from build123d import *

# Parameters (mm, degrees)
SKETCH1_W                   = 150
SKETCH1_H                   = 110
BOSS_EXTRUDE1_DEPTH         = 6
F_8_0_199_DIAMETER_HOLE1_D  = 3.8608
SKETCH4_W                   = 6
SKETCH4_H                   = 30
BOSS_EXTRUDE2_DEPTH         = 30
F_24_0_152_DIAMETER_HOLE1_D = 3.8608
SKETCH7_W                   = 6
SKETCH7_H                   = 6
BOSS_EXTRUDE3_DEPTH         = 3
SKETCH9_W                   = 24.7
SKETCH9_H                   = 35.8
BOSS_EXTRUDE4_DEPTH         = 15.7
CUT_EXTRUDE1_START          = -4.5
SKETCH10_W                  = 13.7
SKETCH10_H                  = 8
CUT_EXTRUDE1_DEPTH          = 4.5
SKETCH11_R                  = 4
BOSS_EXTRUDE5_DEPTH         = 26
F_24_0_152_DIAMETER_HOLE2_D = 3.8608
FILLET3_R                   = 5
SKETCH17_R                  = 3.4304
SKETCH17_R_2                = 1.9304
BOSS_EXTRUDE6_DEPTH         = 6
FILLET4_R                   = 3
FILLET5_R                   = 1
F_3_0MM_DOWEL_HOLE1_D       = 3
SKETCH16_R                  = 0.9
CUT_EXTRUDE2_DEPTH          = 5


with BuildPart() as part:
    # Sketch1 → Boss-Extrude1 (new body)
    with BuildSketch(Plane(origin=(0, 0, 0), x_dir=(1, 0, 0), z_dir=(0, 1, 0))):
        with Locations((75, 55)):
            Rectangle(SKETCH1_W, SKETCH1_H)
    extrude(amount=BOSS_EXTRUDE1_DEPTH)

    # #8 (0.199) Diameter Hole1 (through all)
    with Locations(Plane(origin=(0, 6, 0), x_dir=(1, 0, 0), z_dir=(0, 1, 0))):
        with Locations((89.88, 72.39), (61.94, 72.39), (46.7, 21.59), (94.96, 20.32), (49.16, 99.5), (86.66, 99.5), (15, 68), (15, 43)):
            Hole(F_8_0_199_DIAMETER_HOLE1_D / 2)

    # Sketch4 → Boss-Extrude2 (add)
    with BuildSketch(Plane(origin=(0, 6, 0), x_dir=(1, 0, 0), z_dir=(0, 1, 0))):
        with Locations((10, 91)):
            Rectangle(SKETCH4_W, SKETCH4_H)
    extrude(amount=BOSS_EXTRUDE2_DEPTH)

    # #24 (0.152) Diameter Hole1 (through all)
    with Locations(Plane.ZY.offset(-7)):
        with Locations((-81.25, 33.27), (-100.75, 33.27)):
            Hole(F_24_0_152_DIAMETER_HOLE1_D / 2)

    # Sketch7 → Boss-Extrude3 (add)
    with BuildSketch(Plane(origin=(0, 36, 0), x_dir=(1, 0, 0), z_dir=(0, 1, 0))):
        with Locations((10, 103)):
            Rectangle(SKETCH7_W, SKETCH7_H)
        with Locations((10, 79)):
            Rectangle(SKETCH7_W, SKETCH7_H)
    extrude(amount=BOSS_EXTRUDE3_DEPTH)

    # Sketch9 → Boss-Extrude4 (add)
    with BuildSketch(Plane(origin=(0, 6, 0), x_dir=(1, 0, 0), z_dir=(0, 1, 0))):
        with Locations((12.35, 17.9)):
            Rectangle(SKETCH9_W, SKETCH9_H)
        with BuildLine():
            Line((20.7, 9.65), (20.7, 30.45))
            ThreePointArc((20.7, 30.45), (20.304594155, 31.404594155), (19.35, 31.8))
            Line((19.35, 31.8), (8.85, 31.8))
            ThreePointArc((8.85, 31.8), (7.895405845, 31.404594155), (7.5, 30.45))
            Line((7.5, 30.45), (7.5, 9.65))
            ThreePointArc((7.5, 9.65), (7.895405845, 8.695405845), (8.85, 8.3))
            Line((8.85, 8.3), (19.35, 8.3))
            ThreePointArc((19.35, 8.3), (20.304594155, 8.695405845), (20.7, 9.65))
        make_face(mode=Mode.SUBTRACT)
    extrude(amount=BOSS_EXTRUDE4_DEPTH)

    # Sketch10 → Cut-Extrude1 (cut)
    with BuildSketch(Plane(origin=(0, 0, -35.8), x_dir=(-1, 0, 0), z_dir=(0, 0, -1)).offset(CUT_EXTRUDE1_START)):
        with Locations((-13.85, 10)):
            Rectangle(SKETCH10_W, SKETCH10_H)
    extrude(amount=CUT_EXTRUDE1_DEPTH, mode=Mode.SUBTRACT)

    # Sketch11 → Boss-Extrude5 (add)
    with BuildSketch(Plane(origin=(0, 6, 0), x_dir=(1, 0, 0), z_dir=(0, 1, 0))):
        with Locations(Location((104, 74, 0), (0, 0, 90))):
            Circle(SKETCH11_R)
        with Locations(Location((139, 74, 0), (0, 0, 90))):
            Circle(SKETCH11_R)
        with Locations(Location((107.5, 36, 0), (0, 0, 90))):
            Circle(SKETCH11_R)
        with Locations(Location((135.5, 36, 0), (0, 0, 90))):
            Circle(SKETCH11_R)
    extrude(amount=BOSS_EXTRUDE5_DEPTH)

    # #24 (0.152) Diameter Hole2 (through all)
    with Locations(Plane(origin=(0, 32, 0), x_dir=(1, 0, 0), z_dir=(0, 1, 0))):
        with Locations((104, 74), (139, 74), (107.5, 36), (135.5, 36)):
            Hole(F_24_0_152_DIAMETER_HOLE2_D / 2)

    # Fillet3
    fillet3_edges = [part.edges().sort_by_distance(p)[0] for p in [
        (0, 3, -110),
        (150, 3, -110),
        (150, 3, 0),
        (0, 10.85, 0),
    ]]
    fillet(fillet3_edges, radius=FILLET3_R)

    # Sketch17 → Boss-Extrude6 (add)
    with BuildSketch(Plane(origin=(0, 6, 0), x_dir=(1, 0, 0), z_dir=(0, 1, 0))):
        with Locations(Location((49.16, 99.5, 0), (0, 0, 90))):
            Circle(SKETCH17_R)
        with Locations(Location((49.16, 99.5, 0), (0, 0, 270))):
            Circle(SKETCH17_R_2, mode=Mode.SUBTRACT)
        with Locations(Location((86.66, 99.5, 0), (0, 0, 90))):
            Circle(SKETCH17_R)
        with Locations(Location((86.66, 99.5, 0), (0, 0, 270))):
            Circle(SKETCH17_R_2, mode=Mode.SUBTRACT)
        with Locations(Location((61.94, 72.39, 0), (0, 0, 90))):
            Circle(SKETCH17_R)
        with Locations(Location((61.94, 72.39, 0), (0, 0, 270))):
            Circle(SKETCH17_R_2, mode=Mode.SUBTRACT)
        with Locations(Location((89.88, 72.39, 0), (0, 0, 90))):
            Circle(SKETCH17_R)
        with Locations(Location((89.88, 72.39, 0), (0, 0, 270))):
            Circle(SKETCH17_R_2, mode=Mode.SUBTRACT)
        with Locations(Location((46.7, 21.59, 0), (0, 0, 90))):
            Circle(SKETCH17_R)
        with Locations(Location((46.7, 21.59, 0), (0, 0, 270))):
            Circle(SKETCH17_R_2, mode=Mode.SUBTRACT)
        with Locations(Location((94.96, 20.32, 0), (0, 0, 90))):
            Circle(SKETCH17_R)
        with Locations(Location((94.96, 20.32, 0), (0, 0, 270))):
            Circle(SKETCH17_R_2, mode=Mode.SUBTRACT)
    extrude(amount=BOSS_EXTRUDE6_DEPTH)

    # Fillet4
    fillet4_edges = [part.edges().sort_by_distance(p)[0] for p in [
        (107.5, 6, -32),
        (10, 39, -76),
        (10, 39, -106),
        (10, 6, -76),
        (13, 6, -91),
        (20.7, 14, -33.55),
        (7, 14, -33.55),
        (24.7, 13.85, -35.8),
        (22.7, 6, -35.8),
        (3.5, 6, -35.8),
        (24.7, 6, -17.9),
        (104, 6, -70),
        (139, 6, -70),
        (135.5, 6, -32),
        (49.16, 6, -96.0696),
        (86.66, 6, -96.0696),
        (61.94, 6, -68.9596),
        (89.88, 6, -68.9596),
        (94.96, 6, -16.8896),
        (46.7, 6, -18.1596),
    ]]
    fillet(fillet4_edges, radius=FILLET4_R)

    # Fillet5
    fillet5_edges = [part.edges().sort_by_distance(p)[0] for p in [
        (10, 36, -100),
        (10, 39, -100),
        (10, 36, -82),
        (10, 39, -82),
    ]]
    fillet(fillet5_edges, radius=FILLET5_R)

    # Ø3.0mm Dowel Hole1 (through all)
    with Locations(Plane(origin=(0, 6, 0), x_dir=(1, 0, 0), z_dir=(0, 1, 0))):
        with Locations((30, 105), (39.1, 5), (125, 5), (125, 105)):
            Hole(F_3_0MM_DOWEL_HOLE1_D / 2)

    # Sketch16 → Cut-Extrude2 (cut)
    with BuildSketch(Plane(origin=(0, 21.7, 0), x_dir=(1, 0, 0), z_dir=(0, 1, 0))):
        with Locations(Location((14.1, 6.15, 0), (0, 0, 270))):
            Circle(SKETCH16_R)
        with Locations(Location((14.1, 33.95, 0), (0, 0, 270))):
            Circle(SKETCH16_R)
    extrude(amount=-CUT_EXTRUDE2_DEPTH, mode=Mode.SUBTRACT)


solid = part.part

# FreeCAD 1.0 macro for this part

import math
import FreeCAD as App
import Part
import Sketcher

V = App.Vector
Q = App.Units.Quantity


def edges_at(feature, points):
    """Names of the edges that pass closest to the given points."""
    edges = feature.Shape.Edges
    near = lambda p: min(range(len(edges)), key=lambda i: edges[i].distToShape(Part.Vertex(*p))[0])
    return sorted({f"Edge{near(p) + 1}" for p in points})

doc = App.newDocument("Part")
body = doc.addObject("PartDesign::Body", "Body")

# Sketch on XZ plane
sketch1 = body.newObject("Sketcher::SketchObject", "Sketch")
sketch1.AttachmentSupport = (doc.getObject("XZ_Plane"), [""])
sketch1.MapMode = "FlatFace"
sketch1.addGeometry(Part.LineSegment(V(0, -110, 0), V(0, 0, 0)), False)
sketch1.addGeometry(Part.LineSegment(V(0, 0, 0), V(150, 0, 0)), False)
sketch1.addGeometry(Part.LineSegment(V(150, 0, 0), V(150, -110, 0)), False)
sketch1.addGeometry(Part.LineSegment(V(150, -110, 0), V(0, -110, 0)), False)
sketch1.addConstraint(Sketcher.Constraint("Coincident", 0, 2, 1, 1))
sketch1.addConstraint(Sketcher.Constraint("Coincident", 1, 2, 2, 1))
sketch1.addConstraint(Sketcher.Constraint("Coincident", 2, 2, 3, 1))
sketch1.addConstraint(Sketcher.Constraint("Coincident", 3, 2, 0, 1))
sketch1.addConstraint(Sketcher.Constraint("Vertical", 0))
sketch1.addConstraint(Sketcher.Constraint("Horizontal", 1))
sketch1.addConstraint(Sketcher.Constraint("Vertical", 2))
sketch1.addConstraint(Sketcher.Constraint("Horizontal", 3))
sketch1.addConstraint(Sketcher.Constraint("Coincident", 0, 2, -1, 1))
sketch1.addConstraint(Sketcher.Constraint("DistanceX", 1, 1, 1, 2, Q("150 mm")))
sketch1.addConstraint(Sketcher.Constraint("DistanceY", 0, 1, 0, 2, Q("110 mm")))
pad1 = body.newObject("PartDesign::Pad", "Pad")
pad1.Profile = sketch1
pad1.Length = 6
pad1.Reversed = True

# Sketch on XZ plane
sketch2 = body.newObject("Sketcher::SketchObject", "Sketch001")
sketch2.AttachmentSupport = (doc.getObject("XZ_Plane"), [""])
sketch2.MapMode = "FlatFace"
sketch2.AttachmentOffset = App.Placement(V(0, 0, -6), App.Rotation())
sketch2.addGeometry(Part.Circle(V(89.9, -72.4, 0), V(0, 0, 1), 1.9), False)
sketch2.addGeometry(Part.Circle(V(61.9, -72.4, 0), V(0, 0, 1), 1.9), False)
sketch2.addGeometry(Part.Circle(V(46.7, -21.6, 0), V(0, 0, 1), 1.9), False)
sketch2.addGeometry(Part.Circle(V(95, -20.3, 0), V(0, 0, 1), 1.9), False)
sketch2.addGeometry(Part.Circle(V(49.2, -99.5, 0), V(0, 0, 1), 1.9), False)
sketch2.addGeometry(Part.Circle(V(86.7, -99.5, 0), V(0, 0, 1), 1.9), False)
sketch2.addGeometry(Part.Circle(V(15, -68, 0), V(0, 0, 1), 1.9), False)
sketch2.addGeometry(Part.Circle(V(15, -43, 0), V(0, 0, 1), 1.9), False)
sketch2.addConstraint(Sketcher.Constraint("Equal", 0, 1))
sketch2.addConstraint(Sketcher.Constraint("Equal", 1, 2))
sketch2.addConstraint(Sketcher.Constraint("Equal", 2, 3))
sketch2.addConstraint(Sketcher.Constraint("Equal", 3, 4))
sketch2.addConstraint(Sketcher.Constraint("Equal", 4, 5))
sketch2.addConstraint(Sketcher.Constraint("Equal", 5, 6))
sketch2.addConstraint(Sketcher.Constraint("Equal", 6, 7))
sketch2.addConstraint(Sketcher.Constraint("Horizontal", 0, 3, 1, 3))
sketch2.addConstraint(Sketcher.Constraint("Horizontal", 4, 3, 5, 3))
sketch2.addConstraint(Sketcher.Constraint("Vertical", 6, 3, 7, 3))
sketch2.addConstraint(Sketcher.Constraint("DistanceX", -1, 1, 6, 3, Q("15 mm")))
sketch2.addConstraint(Sketcher.Constraint("DistanceY", 6, 3, -1, 1, Q("68 mm")))
sketch2.addConstraint(Sketcher.Constraint("DistanceY", 7, 3, -1, 1, Q("43 mm")))
sketch2.addConstraint(Sketcher.Constraint("Diameter", 0, Q("3.8608 mm")))
sketch2.addConstraint(Sketcher.Constraint("DistanceX", -1, 1, 2, 3, Q("46.7 mm")))
sketch2.addConstraint(Sketcher.Constraint("DistanceY", 4, 3, -1, 1, Q("99.5 mm")))
sketch2.addConstraint(Sketcher.Constraint("DistanceY", 1, 3, 2, 3, Q("50.8 mm")))
sketch2.addConstraint(Sketcher.Constraint("DistanceX", 4, 3, 3, 3, Q("45.8 mm")))
sketch2.addConstraint(Sketcher.Constraint("DistanceX", 4, 3, 5, 3, Q("37.5 mm")))
sketch2.addConstraint(Sketcher.Constraint("DistanceX", -1, 1, 0, 3, Q("89.88 mm")))
sketch2.addConstraint(Sketcher.Constraint("DistanceY", 0, 3, -1, 1, Q("72.39 mm")))
sketch2.addConstraint(Sketcher.Constraint("DistanceX", -1, 1, 1, 3, Q("61.94 mm")))
sketch2.addConstraint(Sketcher.Constraint("DistanceX", -1, 1, 3, 3, Q("94.96 mm")))
sketch2.addConstraint(Sketcher.Constraint("DistanceY", 3, 3, -1, 1, Q("20.32 mm")))
doc.recompute()
hole = body.newObject("PartDesign::Hole", "Hole")
hole.Profile = sketch2
hole.ThreadType = "None"
hole.Diameter = 3.8608
hole.DepthType = "ThroughAll"
hole.Reversed = True

# Sketch on XZ plane
sketch3 = body.newObject("Sketcher::SketchObject", "Sketch002")
sketch3.AttachmentSupport = (doc.getObject("XZ_Plane"), [""])
sketch3.MapMode = "FlatFace"
sketch3.AttachmentOffset = App.Placement(V(0, 0, -6), App.Rotation())
sketch3.addGeometry(Part.LineSegment(V(7, -106, 0), V(7, -76, 0)), False)
sketch3.addGeometry(Part.LineSegment(V(7, -76, 0), V(13, -76, 0)), False)
sketch3.addGeometry(Part.LineSegment(V(13, -76, 0), V(13, -106, 0)), False)
sketch3.addGeometry(Part.LineSegment(V(13, -106, 0), V(7, -106, 0)), False)
sketch3.addConstraint(Sketcher.Constraint("Coincident", 0, 2, 1, 1))
sketch3.addConstraint(Sketcher.Constraint("Coincident", 1, 2, 2, 1))
sketch3.addConstraint(Sketcher.Constraint("Coincident", 2, 2, 3, 1))
sketch3.addConstraint(Sketcher.Constraint("Coincident", 3, 2, 0, 1))
sketch3.addConstraint(Sketcher.Constraint("Vertical", 0))
sketch3.addConstraint(Sketcher.Constraint("Horizontal", 1))
sketch3.addConstraint(Sketcher.Constraint("Vertical", 2))
sketch3.addConstraint(Sketcher.Constraint("Horizontal", 3))
sketch3.addConstraint(Sketcher.Constraint("DistanceX", 1, 1, 1, 2, Q("6 mm")))
sketch3.addConstraint(Sketcher.Constraint("DistanceY", 0, 1, 0, 2, Q("30 mm")))
sketch3.addConstraint(Sketcher.Constraint("DistanceX", -1, 1, 0, 2, Q("7 mm")))
sketch3.addConstraint(Sketcher.Constraint("DistanceY", 0, 2, -1, 1, Q("76 mm")))
pad2 = body.newObject("PartDesign::Pad", "Pad001")
pad2.Profile = sketch3
pad2.Length = 30
pad2.Reversed = True

# Sketch on YZ plane
sketch4 = body.newObject("Sketcher::SketchObject", "Sketch003")
sketch4.AttachmentSupport = (doc.getObject("YZ_Plane"), [""])
sketch4.MapMode = "FlatFace"
sketch4.AttachmentOffset = App.Placement(V(0, 0, 7), App.Rotation())
sketch4.addGeometry(Part.Circle(V(33.3, -81.2, 0), V(0, 0, 1), 1.9), False)
sketch4.addGeometry(Part.Circle(V(33.3, -100.8, 0), V(0, 0, 1), 1.9), False)
sketch4.addConstraint(Sketcher.Constraint("Equal", 0, 1))
sketch4.addConstraint(Sketcher.Constraint("Vertical", 0, 3, 1, 3))
sketch4.addConstraint(Sketcher.Constraint("Diameter", 0, Q("3.8608 mm")))
sketch4.addConstraint(Sketcher.Constraint("DistanceY", 1, 3, 0, 3, Q("19.5 mm")))
sketch4.addConstraint(Sketcher.Constraint("DistanceX", -1, 1, 0, 3, Q("33.27 mm")))
sketch4.addConstraint(Sketcher.Constraint("DistanceY", 0, 3, -1, 1, Q("81.25 mm")))
doc.recompute()
hole2 = body.newObject("PartDesign::Hole", "Hole001")
hole2.Profile = sketch4
hole2.ThreadType = "None"
hole2.Diameter = 3.8608
hole2.DepthType = "ThroughAll"
hole2.Reversed = True

# Sketch on XZ plane
sketch5 = body.newObject("Sketcher::SketchObject", "Sketch004")
sketch5.AttachmentSupport = (doc.getObject("XZ_Plane"), [""])
sketch5.MapMode = "FlatFace"
sketch5.AttachmentOffset = App.Placement(V(0, 0, -36), App.Rotation())
sketch5.addGeometry(Part.LineSegment(V(7, -106, 0), V(7, -100, 0)), False)
sketch5.addGeometry(Part.LineSegment(V(7, -100, 0), V(13, -100, 0)), False)
sketch5.addGeometry(Part.LineSegment(V(13, -100, 0), V(13, -106, 0)), False)
sketch5.addGeometry(Part.LineSegment(V(13, -106, 0), V(7, -106, 0)), False)
sketch5.addGeometry(Part.LineSegment(V(7, -82, 0), V(7, -76, 0)), False)
sketch5.addGeometry(Part.LineSegment(V(7, -76, 0), V(13, -76, 0)), False)
sketch5.addGeometry(Part.LineSegment(V(13, -76, 0), V(13, -82, 0)), False)
sketch5.addGeometry(Part.LineSegment(V(13, -82, 0), V(7, -82, 0)), False)
sketch5.addConstraint(Sketcher.Constraint("Coincident", 0, 2, 1, 1))
sketch5.addConstraint(Sketcher.Constraint("Coincident", 1, 2, 2, 1))
sketch5.addConstraint(Sketcher.Constraint("Coincident", 2, 2, 3, 1))
sketch5.addConstraint(Sketcher.Constraint("Coincident", 3, 2, 0, 1))
sketch5.addConstraint(Sketcher.Constraint("Coincident", 4, 2, 5, 1))
sketch5.addConstraint(Sketcher.Constraint("Coincident", 5, 2, 6, 1))
sketch5.addConstraint(Sketcher.Constraint("Coincident", 6, 2, 7, 1))
sketch5.addConstraint(Sketcher.Constraint("Coincident", 7, 2, 4, 1))
sketch5.addConstraint(Sketcher.Constraint("Vertical", 0))
sketch5.addConstraint(Sketcher.Constraint("Horizontal", 1))
sketch5.addConstraint(Sketcher.Constraint("Vertical", 2))
sketch5.addConstraint(Sketcher.Constraint("Horizontal", 3))
sketch5.addConstraint(Sketcher.Constraint("Vertical", 4))
sketch5.addConstraint(Sketcher.Constraint("Horizontal", 5))
sketch5.addConstraint(Sketcher.Constraint("Vertical", 6))
sketch5.addConstraint(Sketcher.Constraint("Horizontal", 7))
sketch5.addConstraint(Sketcher.Constraint("Vertical", 3, 2, 4, 2))
sketch5.addConstraint(Sketcher.Constraint("Vertical", 2, 2, 5, 2))
sketch5.addConstraint(Sketcher.Constraint("Equal", 7, 0))
sketch5.addConstraint(Sketcher.Constraint("Equal", 2, 4))
sketch5.addConstraint(Sketcher.Constraint("DistanceX", 1, 1, 1, 2, Q("6 mm")))
sketch5.addConstraint(Sketcher.Constraint("DistanceX", -1, 1, 0, 2, Q("7 mm")))
sketch5.addConstraint(Sketcher.Constraint("DistanceY", 0, 2, -1, 1, Q("100 mm")))
sketch5.addConstraint(Sketcher.Constraint("DistanceY", 4, 2, -1, 1, Q("76 mm")))
pad3 = body.newObject("PartDesign::Pad", "Pad002")
pad3.Profile = sketch5
pad3.Length = 3
pad3.Reversed = True

# Sketch on XZ plane
sketch6 = body.newObject("Sketcher::SketchObject", "Sketch005")
sketch6.AttachmentSupport = (doc.getObject("XZ_Plane"), [""])
sketch6.MapMode = "FlatFace"
sketch6.AttachmentOffset = App.Placement(V(0, 0, -6), App.Rotation())
sketch6.addGeometry(Part.LineSegment(V(0, -35.8, 0), V(0, 0, 0)), False)
sketch6.addGeometry(Part.LineSegment(V(0, 0, 0), V(24.7, 0, 0)), False)
sketch6.addGeometry(Part.LineSegment(V(24.7, 0, 0), V(24.7, -35.8, 0)), False)
sketch6.addGeometry(Part.LineSegment(V(24.7, -35.8, 0), V(0, -35.8, 0)), False)
sketch6.addGeometry(Part.LineSegment(V(20.7, -30.4, 0), V(20.7, -9.7, 0)), False)
sketch6.addGeometry(Part.ArcOfCircle(Part.Circle(V(19.4, -9.6, 0), V(0, 0, 1), 1.3), math.radians(0), math.radians(90)), False)
sketch6.addGeometry(Part.LineSegment(V(19.4, -8.3, 0), V(8.8, -8.3, 0)), False)
sketch6.addGeometry(Part.ArcOfCircle(Part.Circle(V(8.8, -9.6, 0), V(0, 0, 1), 1.3), math.radians(90), math.radians(180)), False)
sketch6.addGeometry(Part.LineSegment(V(7.5, -9.7, 0), V(7.5, -30.4, 0)), False)
sketch6.addGeometry(Part.ArcOfCircle(Part.Circle(V(8.8, -30.5, 0), V(0, 0, 1), 1.3), math.radians(180), math.radians(270)), False)
sketch6.addGeometry(Part.LineSegment(V(8.8, -31.8, 0), V(19.4, -31.8, 0)), False)
sketch6.addGeometry(Part.ArcOfCircle(Part.Circle(V(19.4, -30.5, 0), V(0, 0, 1), 1.3), math.radians(-90), math.radians(0)), False)
sketch6.addConstraint(Sketcher.Constraint("Coincident", 0, 2, 1, 1))
sketch6.addConstraint(Sketcher.Constraint("Coincident", 1, 2, 2, 1))
sketch6.addConstraint(Sketcher.Constraint("Coincident", 2, 2, 3, 1))
sketch6.addConstraint(Sketcher.Constraint("Coincident", 3, 2, 0, 1))
sketch6.addConstraint(Sketcher.Constraint("Tangent", 4, 2, 5, 1))
sketch6.addConstraint(Sketcher.Constraint("Tangent", 5, 2, 6, 1))
sketch6.addConstraint(Sketcher.Constraint("Tangent", 6, 2, 7, 1))
sketch6.addConstraint(Sketcher.Constraint("Tangent", 7, 2, 8, 1))
sketch6.addConstraint(Sketcher.Constraint("Tangent", 8, 2, 9, 1))
sketch6.addConstraint(Sketcher.Constraint("Tangent", 9, 2, 10, 1))
sketch6.addConstraint(Sketcher.Constraint("Tangent", 10, 2, 11, 1))
sketch6.addConstraint(Sketcher.Constraint("Tangent", 11, 2, 4, 1))
sketch6.addConstraint(Sketcher.Constraint("Vertical", 0))
sketch6.addConstraint(Sketcher.Constraint("Horizontal", 1))
sketch6.addConstraint(Sketcher.Constraint("Vertical", 2))
sketch6.addConstraint(Sketcher.Constraint("Horizontal", 3))
sketch6.addConstraint(Sketcher.Constraint("Vertical", 4))
sketch6.addConstraint(Sketcher.Constraint("Horizontal", 6))
sketch6.addConstraint(Sketcher.Constraint("Vertical", 8))
sketch6.addConstraint(Sketcher.Constraint("Horizontal", 10))
sketch6.addConstraint(Sketcher.Constraint("Coincident", 0, 2, -1, 1))
sketch6.addConstraint(Sketcher.Constraint("Equal", 5, 7))
sketch6.addConstraint(Sketcher.Constraint("Equal", 7, 9))
sketch6.addConstraint(Sketcher.Constraint("Equal", 9, 11))
sketch6.addConstraint(Sketcher.Constraint("Radius", 5, Q("1.35 mm")))
sketch6.addConstraint(Sketcher.Constraint("DistanceX", 1, 1, 1, 2, Q("24.7 mm")))
sketch6.addConstraint(Sketcher.Constraint("DistanceX", 6, 2, 6, 1, Q("10.5 mm")))
sketch6.addConstraint(Sketcher.Constraint("DistanceY", 0, 1, 0, 2, Q("35.8 mm")))
sketch6.addConstraint(Sketcher.Constraint("DistanceY", 4, 1, 4, 2, Q("20.8 mm")))
sketch6.addConstraint(Sketcher.Constraint("DistanceX", 4, 2, 1, 2, Q("4 mm")))
sketch6.addConstraint(Sketcher.Constraint("DistanceY", 3, 2, 9, 2, Q("4 mm")))
pad4 = body.newObject("PartDesign::Pad", "Pad003")
pad4.Profile = sketch6
pad4.Length = 15.7
pad4.Reversed = True

# Sketch on XY plane
sketch7 = body.newObject("Sketcher::SketchObject", "Sketch006")
sketch7.AttachmentSupport = (doc.getObject("XY_Plane"), [""])
sketch7.MapMode = "FlatFace"
sketch7.AttachmentOffset = App.Placement(V(0, 0, -31.3), App.Rotation())
sketch7.addGeometry(Part.LineSegment(V(21, 14, 0), V(21, 6, 0)), False)
sketch7.addGeometry(Part.LineSegment(V(21, 6, 0), V(7, 6, 0)), False)
sketch7.addGeometry(Part.LineSegment(V(7, 6, 0), V(7, 14, 0)), False)
sketch7.addGeometry(Part.LineSegment(V(7, 14, 0), V(21, 14, 0)), False)
sketch7.addConstraint(Sketcher.Constraint("Coincident", 0, 2, 1, 1))
sketch7.addConstraint(Sketcher.Constraint("Coincident", 1, 2, 2, 1))
sketch7.addConstraint(Sketcher.Constraint("Coincident", 2, 2, 3, 1))
sketch7.addConstraint(Sketcher.Constraint("Coincident", 3, 2, 0, 1))
sketch7.addConstraint(Sketcher.Constraint("Vertical", 0))
sketch7.addConstraint(Sketcher.Constraint("Horizontal", 1))
sketch7.addConstraint(Sketcher.Constraint("Vertical", 2))
sketch7.addConstraint(Sketcher.Constraint("Horizontal", 3))
sketch7.addConstraint(Sketcher.Constraint("DistanceY", 0, 2, 0, 1, Q("8 mm")))
sketch7.addConstraint(Sketcher.Constraint("DistanceX", 1, 2, 1, 1, Q("13.7 mm")))
sketch7.addConstraint(Sketcher.Constraint("DistanceY", -1, 1, 0, 2, Q("6 mm")))
sketch7.addConstraint(Sketcher.Constraint("DistanceX", -1, 1, 1, 2, Q("7 mm")))
pocket1 = body.newObject("PartDesign::Pocket", "Pocket")
pocket1.Profile = sketch7
pocket1.Length = 4.5

# Sketch on XZ plane
sketch8 = body.newObject("Sketcher::SketchObject", "Sketch007")
sketch8.AttachmentSupport = (doc.getObject("XZ_Plane"), [""])
sketch8.MapMode = "FlatFace"
sketch8.AttachmentOffset = App.Placement(V(0, 0, -6), App.Rotation())
sketch8.addGeometry(Part.Circle(V(104, -74, 0), V(0, 0, 1), 4), False)
sketch8.addGeometry(Part.Circle(V(139, -74, 0), V(0, 0, 1), 4), False)
sketch8.addGeometry(Part.Circle(V(107.5, -36, 0), V(0, 0, 1), 4), False)
sketch8.addGeometry(Part.Circle(V(135.5, -36, 0), V(0, 0, 1), 4), False)
sketch8.addConstraint(Sketcher.Constraint("Equal", 0, 1))
sketch8.addConstraint(Sketcher.Constraint("Equal", 1, 2))
sketch8.addConstraint(Sketcher.Constraint("Equal", 2, 3))
sketch8.addConstraint(Sketcher.Constraint("Horizontal", 0, 3, 1, 3))
sketch8.addConstraint(Sketcher.Constraint("Horizontal", 2, 3, 3, 3))
sketch8.addConstraint(Sketcher.Constraint("Diameter", 0, Q("8 mm")))
sketch8.addConstraint(Sketcher.Constraint("DistanceX", -1, 1, 0, 3, Q("104 mm")))
sketch8.addConstraint(Sketcher.Constraint("DistanceY", 0, 3, -1, 1, Q("74 mm")))
sketch8.addConstraint(Sketcher.Constraint("DistanceX", -1, 1, 1, 3, Q("139 mm")))
sketch8.addConstraint(Sketcher.Constraint("DistanceY", 2, 3, -1, 1, Q("36 mm")))
sketch8.addConstraint(Sketcher.Constraint("DistanceX", 2, 3, 3, 3, Q("28 mm")))
sketch8.addConstraint(Sketcher.Constraint("DistanceX", -1, 1, 2, 3, Q("107.5 mm")))
pad5 = body.newObject("PartDesign::Pad", "Pad004")
pad5.Profile = sketch8
pad5.Length = 26
pad5.Reversed = True

# Sketch on XZ plane
sketch9 = body.newObject("Sketcher::SketchObject", "Sketch008")
sketch9.AttachmentSupport = (doc.getObject("XZ_Plane"), [""])
sketch9.MapMode = "FlatFace"
sketch9.AttachmentOffset = App.Placement(V(0, 0, -32), App.Rotation())
sketch9.addGeometry(Part.Circle(V(104, -74, 0), V(0, 0, 1), 1.9), False)
sketch9.addGeometry(Part.Circle(V(139, -74, 0), V(0, 0, 1), 1.9), False)
sketch9.addGeometry(Part.Circle(V(107.5, -36, 0), V(0, 0, 1), 1.9), False)
sketch9.addGeometry(Part.Circle(V(135.5, -36, 0), V(0, 0, 1), 1.9), False)
sketch9.addConstraint(Sketcher.Constraint("Equal", 0, 1))
sketch9.addConstraint(Sketcher.Constraint("Equal", 1, 2))
sketch9.addConstraint(Sketcher.Constraint("Equal", 2, 3))
sketch9.addConstraint(Sketcher.Constraint("Horizontal", 0, 3, 1, 3))
sketch9.addConstraint(Sketcher.Constraint("Horizontal", 2, 3, 3, 3))
sketch9.addConstraint(Sketcher.Constraint("DistanceX", -1, 1, 0, 3, Q("104 mm")))
sketch9.addConstraint(Sketcher.Constraint("DistanceY", 0, 3, -1, 1, Q("74 mm")))
sketch9.addConstraint(Sketcher.Constraint("DistanceX", -1, 1, 1, 3, Q("139 mm")))
sketch9.addConstraint(Sketcher.Constraint("DistanceY", 2, 3, -1, 1, Q("36 mm")))
sketch9.addConstraint(Sketcher.Constraint("DistanceX", 2, 3, 3, 3, Q("28 mm")))
sketch9.addConstraint(Sketcher.Constraint("Diameter", 0, Q("3.8608 mm")))
sketch9.addConstraint(Sketcher.Constraint("DistanceX", -1, 1, 2, 3, Q("107.5 mm")))
doc.recompute()
hole3 = body.newObject("PartDesign::Hole", "Hole002")
hole3.Profile = sketch9
hole3.ThreadType = "None"
hole3.Diameter = 3.8608
hole3.DepthType = "ThroughAll"
hole3.Reversed = True
doc.recompute()

fillet = body.newObject("PartDesign::Fillet", "Fillet")
fillet.Base = (hole3, edges_at(hole3, [
    (0, 3, -110),
    (150, 3, -110),
    (150, 3, 0),
    (0, 10.85, 0),
]))
fillet.Radius = 5

# Sketch on XZ plane
sketch10 = body.newObject("Sketcher::SketchObject", "Sketch009")
sketch10.AttachmentSupport = (doc.getObject("XZ_Plane"), [""])
sketch10.MapMode = "FlatFace"
sketch10.AttachmentOffset = App.Placement(V(0, 0, -6), App.Rotation())
sketch10.addGeometry(Part.Circle(V(49.2, -99.5, 0), V(0, 0, 1), 3.4), False)
sketch10.addGeometry(Part.Circle(V(49.2, -99.5, 0), V(0, 0, 1), 1.9), False)
sketch10.addGeometry(Part.Circle(V(86.7, -99.5, 0), V(0, 0, 1), 3.4), False)
sketch10.addGeometry(Part.Circle(V(86.7, -99.5, 0), V(0, 0, 1), 1.9), False)
sketch10.addGeometry(Part.Circle(V(61.9, -72.4, 0), V(0, 0, 1), 3.4), False)
sketch10.addGeometry(Part.Circle(V(61.9, -72.4, 0), V(0, 0, 1), 1.9), False)
sketch10.addGeometry(Part.Circle(V(89.9, -72.4, 0), V(0, 0, 1), 3.4), False)
sketch10.addGeometry(Part.Circle(V(89.9, -72.4, 0), V(0, 0, 1), 1.9), False)
sketch10.addGeometry(Part.Circle(V(46.7, -21.6, 0), V(0, 0, 1), 3.4), False)
sketch10.addGeometry(Part.Circle(V(46.7, -21.6, 0), V(0, 0, 1), 1.9), False)
sketch10.addGeometry(Part.Circle(V(95, -20.3, 0), V(0, 0, 1), 3.4), False)
sketch10.addGeometry(Part.Circle(V(95, -20.3, 0), V(0, 0, 1), 1.9), False)
sketch10.addConstraint(Sketcher.Constraint("Coincident", 1, 3, 0, 3))
sketch10.addConstraint(Sketcher.Constraint("Coincident", 3, 3, 2, 3))
sketch10.addConstraint(Sketcher.Constraint("Coincident", 5, 3, 4, 3))
sketch10.addConstraint(Sketcher.Constraint("Coincident", 7, 3, 6, 3))
sketch10.addConstraint(Sketcher.Constraint("Coincident", 9, 3, 8, 3))
sketch10.addConstraint(Sketcher.Constraint("Coincident", 11, 3, 10, 3))
sketch10.addConstraint(Sketcher.Constraint("Equal", 0, 2))
sketch10.addConstraint(Sketcher.Constraint("Equal", 1, 3))
sketch10.addConstraint(Sketcher.Constraint("Equal", 2, 4))
sketch10.addConstraint(Sketcher.Constraint("Equal", 3, 5))
sketch10.addConstraint(Sketcher.Constraint("Equal", 4, 6))
sketch10.addConstraint(Sketcher.Constraint("Equal", 5, 7))
sketch10.addConstraint(Sketcher.Constraint("Equal", 6, 8))
sketch10.addConstraint(Sketcher.Constraint("Equal", 7, 9))
sketch10.addConstraint(Sketcher.Constraint("Equal", 8, 10))
sketch10.addConstraint(Sketcher.Constraint("Equal", 9, 11))
sketch10.addConstraint(Sketcher.Constraint("Horizontal", 1, 3, 2, 3))
sketch10.addConstraint(Sketcher.Constraint("Horizontal", 5, 3, 6, 3))
sketch10.addConstraint(Sketcher.Constraint("Diameter", 0, Q("6.8608 mm")))
sketch10.addConstraint(Sketcher.Constraint("Diameter", 1, Q("3.8608 mm")))
sketch10.addConstraint(Sketcher.Constraint("DistanceY", 0, 3, -1, 1, Q("99.5 mm")))
sketch10.addConstraint(Sketcher.Constraint("DistanceX", -1, 1, 8, 3, Q("46.7 mm")))
sketch10.addConstraint(Sketcher.Constraint("DistanceX", 0, 3, 2, 3, Q("37.5 mm")))
sketch10.addConstraint(Sketcher.Constraint("DistanceY", 4, 3, 8, 3, Q("50.8 mm")))
sketch10.addConstraint(Sketcher.Constraint("DistanceX", -1, 1, 0, 3, Q("49.16 mm")))
sketch10.addConstraint(Sketcher.Constraint("DistanceX", -1, 1, 4, 3, Q("61.94 mm")))
sketch10.addConstraint(Sketcher.Constraint("DistanceY", 4, 3, -1, 1, Q("72.39 mm")))
sketch10.addConstraint(Sketcher.Constraint("DistanceX", -1, 1, 6, 3, Q("89.88 mm")))
sketch10.addConstraint(Sketcher.Constraint("DistanceX", -1, 1, 10, 3, Q("94.96 mm")))
sketch10.addConstraint(Sketcher.Constraint("DistanceY", 10, 3, -1, 1, Q("20.32 mm")))
pad6 = body.newObject("PartDesign::Pad", "Pad005")
pad6.Profile = sketch10
pad6.Length = 6
pad6.Reversed = True
doc.recompute()

fillet2 = body.newObject("PartDesign::Fillet", "Fillet001")
fillet2.Base = (pad6, edges_at(pad6, [
    (107.5, 6, -32),
    (10, 39, -76),
    (10, 39, -106),
    (10, 6, -76),
    (13, 6, -91),
    (20.7, 14, -33.55),
    (7, 14, -33.55),
    (24.7, 13.85, -35.8),
    (22.7, 6, -35.8),
    (3.5, 6, -35.8),
    (24.7, 6, -17.9),
    (104, 6, -70),
    (139, 6, -70),
    (135.5, 6, -32),
    (49.16, 6, -96.07),
    (86.66, 6, -96.07),
    (61.94, 6, -68.96),
    (89.88, 6, -68.96),
    (94.96, 6, -16.89),
    (46.7, 6, -18.16),
]))
fillet2.Radius = 3
doc.recompute()

fillet3 = body.newObject("PartDesign::Fillet", "Fillet002")
fillet3.Base = (fillet2, edges_at(fillet2, [
    (10, 36, -100),
    (10, 39, -100),
    (10, 36, -82),
    (10, 39, -82),
]))
fillet3.Radius = 1

# Sketch on XZ plane
sketch11 = body.newObject("Sketcher::SketchObject", "Sketch010")
sketch11.AttachmentSupport = (doc.getObject("XZ_Plane"), [""])
sketch11.MapMode = "FlatFace"
sketch11.AttachmentOffset = App.Placement(V(0, 0, -6), App.Rotation())
sketch11.addGeometry(Part.Circle(V(30, -105, 0), V(0, 0, 1), 1.5), False)
sketch11.addGeometry(Part.Circle(V(39.1, -5, 0), V(0, 0, 1), 1.5), False)
sketch11.addGeometry(Part.Circle(V(125, -5, 0), V(0, 0, 1), 1.5), False)
sketch11.addGeometry(Part.Circle(V(125, -105, 0), V(0, 0, 1), 1.5), False)
sketch11.addConstraint(Sketcher.Constraint("Equal", 0, 1))
sketch11.addConstraint(Sketcher.Constraint("Equal", 1, 2))
sketch11.addConstraint(Sketcher.Constraint("Equal", 2, 3))
sketch11.addConstraint(Sketcher.Constraint("Horizontal", 1, 3, 2, 3))
sketch11.addConstraint(Sketcher.Constraint("Horizontal", 0, 3, 3, 3))
sketch11.addConstraint(Sketcher.Constraint("Vertical", 2, 3, 3, 3))
sketch11.addConstraint(Sketcher.Constraint("Diameter", 0, Q("3 mm")))
sketch11.addConstraint(Sketcher.Constraint("DistanceX", -1, 1, 0, 3, Q("30 mm")))
sketch11.addConstraint(Sketcher.Constraint("DistanceY", 0, 3, -1, 1, Q("105 mm")))
sketch11.addConstraint(Sketcher.Constraint("DistanceY", 1, 3, -1, 1, Q("5 mm")))
sketch11.addConstraint(Sketcher.Constraint("DistanceX", -1, 1, 2, 3, Q("125 mm")))
sketch11.addConstraint(Sketcher.Constraint("DistanceX", -1, 1, 1, 3, Q("39.1 mm")))
doc.recompute()
hole4 = body.newObject("PartDesign::Hole", "Hole003")
hole4.Profile = sketch11
hole4.ThreadType = "None"
hole4.Diameter = 3
hole4.DepthType = "ThroughAll"
hole4.Reversed = True

# Sketch on XZ plane
sketch12 = body.newObject("Sketcher::SketchObject", "Sketch011")
sketch12.AttachmentSupport = (doc.getObject("XZ_Plane"), [""])
sketch12.MapMode = "FlatFace"
sketch12.AttachmentOffset = App.Placement(V(0, 0, -21.7), App.Rotation())
sketch12.addGeometry(Part.Circle(V(14.1, -6.2, 0), V(0, 0, 1), 0.9), False)
sketch12.addGeometry(Part.Circle(V(14.1, -34, 0), V(0, 0, 1), 0.9), False)
sketch12.addConstraint(Sketcher.Constraint("Equal", 0, 1))
sketch12.addConstraint(Sketcher.Constraint("Vertical", 0, 3, 1, 3))
sketch12.addConstraint(Sketcher.Constraint("Diameter", 0, Q("1.8 mm")))
sketch12.addConstraint(Sketcher.Constraint("DistanceX", -1, 1, 0, 3, Q("14.1 mm")))
sketch12.addConstraint(Sketcher.Constraint("DistanceY", 1, 3, 0, 3, Q("27.8 mm")))
sketch12.addConstraint(Sketcher.Constraint("DistanceY", 0, 3, -1, 1, Q("6.15 mm")))
pocket2 = body.newObject("PartDesign::Pocket", "Pocket001")
pocket2.Profile = sketch12
pocket2.Length = 5
pocket2.Reversed = True

doc.recompute()
